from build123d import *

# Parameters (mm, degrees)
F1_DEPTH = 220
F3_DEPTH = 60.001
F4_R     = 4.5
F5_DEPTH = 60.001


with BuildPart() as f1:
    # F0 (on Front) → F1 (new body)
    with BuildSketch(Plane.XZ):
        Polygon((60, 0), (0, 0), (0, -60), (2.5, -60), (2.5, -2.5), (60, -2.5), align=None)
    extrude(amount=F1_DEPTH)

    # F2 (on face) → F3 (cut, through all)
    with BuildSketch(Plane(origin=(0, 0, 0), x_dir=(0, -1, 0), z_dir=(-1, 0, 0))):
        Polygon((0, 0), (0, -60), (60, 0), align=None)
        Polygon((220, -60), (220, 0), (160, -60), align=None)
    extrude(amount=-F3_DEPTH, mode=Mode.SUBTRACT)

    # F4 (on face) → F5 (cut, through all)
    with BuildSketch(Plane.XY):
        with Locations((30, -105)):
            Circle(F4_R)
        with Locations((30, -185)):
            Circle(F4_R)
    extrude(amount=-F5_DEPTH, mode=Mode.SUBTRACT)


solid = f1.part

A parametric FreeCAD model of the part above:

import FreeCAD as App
import Part
import Sketcher

doc = App.newDocument("Part")
body = doc.addObject("PartDesign::Body", "Body")

# Sketch on XZ plane
sketch1 = doc.addObject("Sketcher::SketchObject", "Sketch")
body.addObject(sketch1)
sketch1.AttachmentSupport = (doc.XZ_Plane, [""])
sketch1.MapMode = "FlatFace"
sketch1.addGeometry(Part.LineSegment(App.Vector(60, 0, 0), App.Vector(0, 0, 0)), False)
sketch1.addGeometry(Part.LineSegment(App.Vector(0, 0, 0), App.Vector(0, -60, 0)), False)
sketch1.addGeometry(Part.LineSegment(App.Vector(0, -60, 0), App.Vector(2.5, -60, 0)), False)
sketch1.addGeometry(Part.LineSegment(App.Vector(2.5, -60, 0), App.Vector(2.5, -2.5, 0)), False)
sketch1.addGeometry(Part.LineSegment(App.Vector(2.5, -2.5, 0), App.Vector(60, -2.5, 0)), False)
sketch1.addGeometry(Part.LineSegment(App.Vector(60, -2.5, 0), App.Vector(60, 0, 0)), False)
sketch1.addConstraint(Sketcher.Constraint("Coincident", 0, 2, 1, 1))
sketch1.addConstraint(Sketcher.Constraint("Coincident", 1, 2, 2, 1))
sketch1.addConstraint(Sketcher.Constraint("Coincident", 2, 2, 3, 1))
sketch1.addConstraint(Sketcher.Constraint("Coincident", 3, 2, 4, 1))
sketch1.addConstraint(Sketcher.Constraint("Coincident", 4, 2, 5, 1))
sketch1.addConstraint(Sketcher.Constraint("Coincident", 5, 2, 0, 1))
sketch1.addConstraint(Sketcher.Constraint("Horizontal", 0))
sketch1.addConstraint(Sketcher.Constraint("Vertical", 1))
sketch1.addConstraint(Sketcher.Constraint("Horizontal", 2))
sketch1.addConstraint(Sketcher.Constraint("Vertical", 3))
sketch1.addConstraint(Sketcher.Constraint("Horizontal", 4))
sketch1.addConstraint(Sketcher.Constraint("Vertical", 5))
sketch1.addConstraint(Sketcher.Constraint("Coincident", 0, 2, -1, 1))
sketch1.addConstraint(Sketcher.Constraint("Equal", 0, 1))
sketch1.addConstraint(Sketcher.Constraint("Equal", 4, 3))
sketch1.addConstraint(Sketcher.Constraint("DistanceX", 0, 2, 0, 1, 60.0))
sketch1.addConstraint(Sketcher.Constraint("DistanceX", 2, 1, 2, 2, 2.5))
pad1 = doc.addObject("PartDesign::Pad", "Pad")
body.addObject(pad1)
pad1.Profile = sketch1
pad1.Length = 220

# Sketch on YZ plane
sketch2 = doc.addObject("Sketcher::SketchObject", "Sketch001")
body.addObject(sketch2)
sketch2.AttachmentSupport = (doc.YZ_Plane, [""])
sketch2.MapMode = "FlatFace"
sketch2.addGeometry(Part.LineSegment(App.Vector(0, 0, 0), App.Vector(0, -60, 0)), False)
sketch2.addGeometry(Part.LineSegment(App.Vector(0, -60, 0), App.Vector(-60, 0, 0)), False)
sketch2.addGeometry(Part.LineSegment(App.Vector(-60, 0, 0), App.Vector(0, 0, 0)), False)
sketch2.addGeometry(Part.LineSegment(App.Vector(-220, -60, 0), App.Vector(-220, 0, 0)), False)
sketch2.addGeometry(Part.LineSegment(App.Vector(-220, 0, 0), App.Vector(-160, -60, 0)), False)
sketch2.addGeometry(Part.LineSegment(App.Vector(-160, -60, 0), App.Vector(-220, -60, 0)), False)
sketch2.addConstraint(Sketcher.Constraint("Coincident", 0, 2, 1, 1))
sketch2.addConstraint(Sketcher.Constraint("Coincident", 1, 2, 2, 1))
sketch2.addConstraint(Sketcher.Constraint("Coincident", 2, 2, 0, 1))
sketch2.addConstraint(Sketcher.Constraint("Coincident", 3, 2, 4, 1))
sketch2.addConstraint(Sketcher.Constraint("Coincident", 4, 2, 5, 1))
sketch2.addConstraint(Sketcher.Constraint("Coincident", 5, 2, 3, 1))
sketch2.addConstraint(Sketcher.Constraint("Vertical", 0))
sketch2.addConstraint(Sketcher.Constraint("Horizontal", 2))
sketch2.addConstraint(Sketcher.Constraint("Vertical", 3))
sketch2.addConstraint(Sketcher.Constraint("Horizontal", 5))
sketch2.addConstraint(Sketcher.Constraint("Coincident", 2, 2, -1, 1))
sketch2.addConstraint(Sketcher.Constraint("PointOnObject", 3, 2, -1))
sketch2.addConstraint(Sketcher.Constraint("Parallel", 1, 4))
sketch2.addConstraint(Sketcher.Constraint("Horizontal", 0, 2, 4, 2))
sketch2.addConstraint(Sketcher.Constraint("Equal", 5, 0))
sketch2.addConstraint(Sketcher.Constraint("DistanceX", 2, 1, 2, 2, 60.0))
sketch2.addConstraint(Sketcher.Constraint("DistanceX", 3, 2, -1, 1, 220.0))
pocket1 = doc.addObject("PartDesign::Pocket", "Pocket")
body.addObject(pocket1)
pocket1.Profile = sketch2
pocket1.Type = "ThroughAll"
pocket1.Reversed = True

# Sketch on XY plane
sketch3 = doc.addObject("Sketcher::SketchObject", "Sketch002")
body.addObject(sketch3)
sketch3.AttachmentSupport = (doc.XY_Plane, [""])
sketch3.MapMode = "FlatFace"
sketch3.addGeometry(Part.Circle(App.Vector(30, -105, 0), App.Vector(0, 0, 1), 4.5), False)
sketch3.addGeometry(Part.Circle(App.Vector(30, -185, 0), App.Vector(0, 0, 1), 4.5), False)
sketch3.addConstraint(Sketcher.Constraint("Equal", 0, 1))
sketch3.addConstraint(Sketcher.Constraint("Vertical", 0, 3, 1, 3))
sketch3.addConstraint(Sketcher.Constraint("Diameter", 0, 9.0))
sketch3.addConstraint(Sketcher.Constraint("DistanceX", -1, 1, 0, 3, 30.0))
sketch3.addConstraint(Sketcher.Constraint("DistanceY", 0, 3, -1, 1, 105.0))
sketch3.addConstraint(Sketcher.Constraint("DistanceY", 1, 3, -1, 1, 185.0))
pocket2 = doc.addObject("PartDesign::Pocket", "Pocket001")
body.addObject(pocket2)
pocket2.Profile = sketch3
pocket2.Type = "ThroughAll"

doc.recompute()
